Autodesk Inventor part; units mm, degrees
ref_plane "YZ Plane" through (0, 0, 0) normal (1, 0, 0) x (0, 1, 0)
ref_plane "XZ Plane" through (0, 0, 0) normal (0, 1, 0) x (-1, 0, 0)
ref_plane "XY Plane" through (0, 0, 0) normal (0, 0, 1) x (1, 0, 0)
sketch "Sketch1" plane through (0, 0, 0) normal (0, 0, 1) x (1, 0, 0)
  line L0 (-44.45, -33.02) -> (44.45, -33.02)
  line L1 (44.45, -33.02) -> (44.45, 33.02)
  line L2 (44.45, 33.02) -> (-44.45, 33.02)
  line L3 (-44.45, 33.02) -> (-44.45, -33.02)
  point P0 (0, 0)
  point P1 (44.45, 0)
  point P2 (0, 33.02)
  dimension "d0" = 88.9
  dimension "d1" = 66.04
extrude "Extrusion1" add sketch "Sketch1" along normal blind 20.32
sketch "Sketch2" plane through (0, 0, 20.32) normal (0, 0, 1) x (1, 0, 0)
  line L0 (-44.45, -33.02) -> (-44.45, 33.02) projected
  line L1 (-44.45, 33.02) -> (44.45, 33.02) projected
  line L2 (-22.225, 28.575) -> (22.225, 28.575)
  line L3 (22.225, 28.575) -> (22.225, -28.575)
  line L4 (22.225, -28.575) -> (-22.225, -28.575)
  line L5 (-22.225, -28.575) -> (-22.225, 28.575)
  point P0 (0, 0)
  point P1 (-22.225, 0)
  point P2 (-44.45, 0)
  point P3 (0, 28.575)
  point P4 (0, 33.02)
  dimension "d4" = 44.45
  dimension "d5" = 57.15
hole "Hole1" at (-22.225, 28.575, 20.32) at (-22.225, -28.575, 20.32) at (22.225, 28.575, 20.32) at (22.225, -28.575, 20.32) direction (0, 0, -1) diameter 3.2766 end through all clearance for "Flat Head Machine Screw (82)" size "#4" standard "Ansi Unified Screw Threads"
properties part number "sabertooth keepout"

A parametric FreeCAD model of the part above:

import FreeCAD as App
import Part
import Sketcher

V = App.Vector
Q = App.Units.Quantity

doc = App.newDocument("Part")
params = doc.addObject("Spreadsheet::Sheet", "Params")
for row, (alias, value) in enumerate([
    ("sketch1_width", "3.5 in"),
    ("sketch1_height", "2.6 in"),
    ("pad1_length", "0.8 in"),
    ("sketch2_diameter", "0.129 in"),
    ("hole_diameter", "0.129 in"),
], start=1):
    params.set(f"A{row}", alias)
    params.set(f"B{row}", "=" + value)
    params.setAlias(f"B{row}", alias)

body = doc.addObject("PartDesign::Body", "Body")

# Sketch on XY plane
sketch1 = body.newObject("Sketcher::SketchObject", "Sketch")
sketch1.AttachmentSupport = (doc.getObject("XY_Plane"), [""])
sketch1.MapMode = "FlatFace"
sketch1.addGeometry(Part.LineSegment(V(-44, 33, 0), V(-44, -33, 0)), False)
sketch1.addGeometry(Part.LineSegment(V(-44, -33, 0), V(44, -33, 0)), False)
sketch1.addGeometry(Part.LineSegment(V(44, -33, 0), V(44, 33, 0)), False)
sketch1.addGeometry(Part.LineSegment(V(44, 33, 0), V(-44, 33, 0)), False)
sketch1.addConstraint(Sketcher.Constraint("Coincident", 0, 2, 1, 1))
sketch1.addConstraint(Sketcher.Constraint("Coincident", 1, 2, 2, 1))
sketch1.addConstraint(Sketcher.Constraint("Coincident", 2, 2, 3, 1))
sketch1.addConstraint(Sketcher.Constraint("Coincident", 3, 2, 0, 1))
sketch1.addConstraint(Sketcher.Constraint("Vertical", 0))
sketch1.addConstraint(Sketcher.Constraint("Horizontal", 1))
sketch1.addConstraint(Sketcher.Constraint("Vertical", 2))
sketch1.addConstraint(Sketcher.Constraint("Horizontal", 3))
sketch1.addConstraint(Sketcher.Constraint("Symmetric", 0, 2, 2, 2, -1, 1))
sketch1.addConstraint(Sketcher.Constraint("DistanceX", 1, 1, 1, 2, Q("3.5 in")))
sketch1.addConstraint(Sketcher.Constraint("DistanceY", 0, 2, 0, 1, Q("2.6 in")))
sketch1.setExpression("Constraints[9]", "Params.sketch1_width")
sketch1.setExpression("Constraints[10]", "Params.sketch1_height")
pad1 = body.newObject("PartDesign::Pad", "Pad")
pad1.Profile = sketch1
pad1.setExpression("Length", "Params.pad1_length")

# Sketch on XY plane
sketch2 = body.newObject("Sketcher::SketchObject", "Sketch001")
sketch2.AttachmentSupport = (doc.getObject("XY_Plane"), [""])
sketch2.MapMode = "FlatFace"
sketch2.AttachmentOffset = App.Placement(V(0, 0, 0.8 * 25.4), App.Rotation())
sketch2.addGeometry(Part.Circle(V(-22.2, 28.6, 0), V(0, 0, 1), 1.6), False)
sketch2.addGeometry(Part.Circle(V(-22.2, -28.6, 0), V(0, 0, 1), 1.6), False)
sketch2.addGeometry(Part.Circle(V(22.2, 28.6, 0), V(0, 0, 1), 1.6), False)
sketch2.addGeometry(Part.Circle(V(22.2, -28.6, 0), V(0, 0, 1), 1.6), False)
sketch2.addConstraint(Sketcher.Constraint("Equal", 0, 1))
sketch2.addConstraint(Sketcher.Constraint("Equal", 1, 2))
sketch2.addConstraint(Sketcher.Constraint("Equal", 2, 3))
sketch2.addConstraint(Sketcher.Constraint("Symmetric", 1, 3, 2, 3, -1, 1))
sketch2.addConstraint(Sketcher.Constraint("Symmetric", 0, 3, 3, 3, -1, 1))
sketch2.addConstraint(Sketcher.Constraint("Symmetric", 0, 3, 2, 3, -2))
sketch2.addConstraint(Sketcher.Constraint("Diameter", 0, Q("0.129 in")))
sketch2.addConstraint(Sketcher.Constraint("DistanceY", 1, 3, 0, 3, Q("2.25 in")))
sketch2.addConstraint(Sketcher.Constraint("DistanceX", 0, 3, 2, 3, Q("1.75 in")))
sketch2.setExpression("Constraints[6]", "Params.sketch2_diameter")
doc.recompute()
hole = body.newObject("PartDesign::Hole", "Hole")
hole.Profile = sketch2
hole.ThreadType = "None"
hole.setExpression("Diameter", "Params.hole_diameter")
hole.DepthType = "ThroughAll"

doc.recompute()
